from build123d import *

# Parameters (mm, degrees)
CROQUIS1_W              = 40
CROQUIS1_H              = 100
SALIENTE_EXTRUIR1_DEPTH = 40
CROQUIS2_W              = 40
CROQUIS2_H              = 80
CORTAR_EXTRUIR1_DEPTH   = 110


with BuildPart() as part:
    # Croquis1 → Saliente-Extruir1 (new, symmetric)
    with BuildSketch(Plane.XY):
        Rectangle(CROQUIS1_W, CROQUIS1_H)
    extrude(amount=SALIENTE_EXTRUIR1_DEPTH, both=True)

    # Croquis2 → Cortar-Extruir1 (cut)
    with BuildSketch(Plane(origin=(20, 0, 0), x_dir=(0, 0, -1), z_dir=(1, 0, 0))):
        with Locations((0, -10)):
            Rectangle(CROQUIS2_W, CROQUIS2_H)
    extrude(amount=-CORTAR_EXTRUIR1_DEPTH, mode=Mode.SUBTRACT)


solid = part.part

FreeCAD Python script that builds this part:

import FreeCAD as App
import Part
import Sketcher
from FreeCAD import Vector


def add_polygon(sketch, points):
    """Adds a closed chain of lines whose ends are joined by coincident constraints."""
    first, n = sketch.GeometryCount, len(points)
    for a, b in zip(points, points[1:] + points[:1]):
        sketch.addGeometry(Part.LineSegment(App.Vector(*a, 0), App.Vector(*b, 0)), False)
    for i in range(n):
        sketch.addConstraint(Sketcher.Constraint("Coincident", first + i, 2, first + (i + 1) % n, 1))

doc = App.newDocument("Part")
params = doc.addObject("Spreadsheet::Sheet", "Params")
for row, (alias, value) in enumerate([
    ("sketch1_width", "40 mm"),
    ("sketch1_height", "100 mm"),
    ("pad1_length", "80 mm"),
    ("sketch2_width", "80 mm"),
    ("sketch2_height", "40 mm"),
    ("pocket1_length", "110 mm"),
], start=1):
    params.set(f"A{row}", alias)
    params.set(f"B{row}", "=" + value)
    params.setAlias(f"B{row}", alias)

body = doc.addObject("PartDesign::Body", "Body")

sketch1 = body.newObject("Sketcher::SketchObject", "Sketch")
sketch1.AttachmentSupport = (doc.getObject("XY_Plane"), [""])
sketch1.MapMode = "FlatFace"
add_polygon(sketch1, [(-20, 50), (-20, -50), (20, -50), (20, 50)])
sketch1.addConstraint(Sketcher.Constraint("Vertical", 0))
sketch1.addConstraint(Sketcher.Constraint("Horizontal", 1))
sketch1.addConstraint(Sketcher.Constraint("Vertical", 2))
sketch1.addConstraint(Sketcher.Constraint("Horizontal", 3))
sketch1.addConstraint(Sketcher.Constraint("Symmetric", 0, 2, 2, 2, -1, 1))
sketch1.addConstraint(Sketcher.Constraint("DistanceX", 1, 1, 1, 2, 40.0))
sketch1.addConstraint(Sketcher.Constraint("DistanceY", 0, 2, 0, 1, 100.0))
sketch1.setExpression("Constraints[9]", "Params.sketch1_width")
sketch1.setExpression("Constraints[10]", "Params.sketch1_height")
pad1 = body.newObject("PartDesign::Pad", "Pad")
pad1.Profile = sketch1
pad1.setExpression("Length", "Params.pad1_length")
pad1.Midplane = True

sketch2 = body.newObject("Sketcher::SketchObject", "Sketch001")
sketch2.AttachmentSupport = (doc.getObject("YZ_Plane"), [""])
sketch2.MapMode = "FlatFace"
sketch2.AttachmentOffset = App.Placement(Vector(0, 0, 20), App.Rotation())
add_polygon(sketch2, [(30, 20), (-50, 20), (-50, -20), (30, -20)])
sketch2.addConstraint(Sketcher.Constraint("Horizontal", 0))
sketch2.addConstraint(Sketcher.Constraint("Vertical", 1))
sketch2.addConstraint(Sketcher.Constraint("Horizontal", 2))
sketch2.addConstraint(Sketcher.Constraint("Vertical", 3))
sketch2.addConstraint(Sketcher.Constraint("DistanceX", 0, 2, 0, 1, 80.0))
sketch2.addConstraint(Sketcher.Constraint("DistanceY", 1, 2, 1, 1, 40.0))
sketch2.addConstraint(Sketcher.Constraint("DistanceX", 0, 2, -1, 1, 50.0))
sketch2.addConstraint(Sketcher.Constraint("DistanceY", -1, 1, 0, 2, 20.0))
sketch2.setExpression("Constraints[8]", "Params.sketch2_width")
sketch2.setExpression("Constraints[9]", "Params.sketch2_height")
pocket1 = body.newObject("PartDesign::Pocket", "Pocket")
pocket1.Profile = sketch2
pocket1.setExpression("Length", "Params.pocket1_length")

doc.recompute()
